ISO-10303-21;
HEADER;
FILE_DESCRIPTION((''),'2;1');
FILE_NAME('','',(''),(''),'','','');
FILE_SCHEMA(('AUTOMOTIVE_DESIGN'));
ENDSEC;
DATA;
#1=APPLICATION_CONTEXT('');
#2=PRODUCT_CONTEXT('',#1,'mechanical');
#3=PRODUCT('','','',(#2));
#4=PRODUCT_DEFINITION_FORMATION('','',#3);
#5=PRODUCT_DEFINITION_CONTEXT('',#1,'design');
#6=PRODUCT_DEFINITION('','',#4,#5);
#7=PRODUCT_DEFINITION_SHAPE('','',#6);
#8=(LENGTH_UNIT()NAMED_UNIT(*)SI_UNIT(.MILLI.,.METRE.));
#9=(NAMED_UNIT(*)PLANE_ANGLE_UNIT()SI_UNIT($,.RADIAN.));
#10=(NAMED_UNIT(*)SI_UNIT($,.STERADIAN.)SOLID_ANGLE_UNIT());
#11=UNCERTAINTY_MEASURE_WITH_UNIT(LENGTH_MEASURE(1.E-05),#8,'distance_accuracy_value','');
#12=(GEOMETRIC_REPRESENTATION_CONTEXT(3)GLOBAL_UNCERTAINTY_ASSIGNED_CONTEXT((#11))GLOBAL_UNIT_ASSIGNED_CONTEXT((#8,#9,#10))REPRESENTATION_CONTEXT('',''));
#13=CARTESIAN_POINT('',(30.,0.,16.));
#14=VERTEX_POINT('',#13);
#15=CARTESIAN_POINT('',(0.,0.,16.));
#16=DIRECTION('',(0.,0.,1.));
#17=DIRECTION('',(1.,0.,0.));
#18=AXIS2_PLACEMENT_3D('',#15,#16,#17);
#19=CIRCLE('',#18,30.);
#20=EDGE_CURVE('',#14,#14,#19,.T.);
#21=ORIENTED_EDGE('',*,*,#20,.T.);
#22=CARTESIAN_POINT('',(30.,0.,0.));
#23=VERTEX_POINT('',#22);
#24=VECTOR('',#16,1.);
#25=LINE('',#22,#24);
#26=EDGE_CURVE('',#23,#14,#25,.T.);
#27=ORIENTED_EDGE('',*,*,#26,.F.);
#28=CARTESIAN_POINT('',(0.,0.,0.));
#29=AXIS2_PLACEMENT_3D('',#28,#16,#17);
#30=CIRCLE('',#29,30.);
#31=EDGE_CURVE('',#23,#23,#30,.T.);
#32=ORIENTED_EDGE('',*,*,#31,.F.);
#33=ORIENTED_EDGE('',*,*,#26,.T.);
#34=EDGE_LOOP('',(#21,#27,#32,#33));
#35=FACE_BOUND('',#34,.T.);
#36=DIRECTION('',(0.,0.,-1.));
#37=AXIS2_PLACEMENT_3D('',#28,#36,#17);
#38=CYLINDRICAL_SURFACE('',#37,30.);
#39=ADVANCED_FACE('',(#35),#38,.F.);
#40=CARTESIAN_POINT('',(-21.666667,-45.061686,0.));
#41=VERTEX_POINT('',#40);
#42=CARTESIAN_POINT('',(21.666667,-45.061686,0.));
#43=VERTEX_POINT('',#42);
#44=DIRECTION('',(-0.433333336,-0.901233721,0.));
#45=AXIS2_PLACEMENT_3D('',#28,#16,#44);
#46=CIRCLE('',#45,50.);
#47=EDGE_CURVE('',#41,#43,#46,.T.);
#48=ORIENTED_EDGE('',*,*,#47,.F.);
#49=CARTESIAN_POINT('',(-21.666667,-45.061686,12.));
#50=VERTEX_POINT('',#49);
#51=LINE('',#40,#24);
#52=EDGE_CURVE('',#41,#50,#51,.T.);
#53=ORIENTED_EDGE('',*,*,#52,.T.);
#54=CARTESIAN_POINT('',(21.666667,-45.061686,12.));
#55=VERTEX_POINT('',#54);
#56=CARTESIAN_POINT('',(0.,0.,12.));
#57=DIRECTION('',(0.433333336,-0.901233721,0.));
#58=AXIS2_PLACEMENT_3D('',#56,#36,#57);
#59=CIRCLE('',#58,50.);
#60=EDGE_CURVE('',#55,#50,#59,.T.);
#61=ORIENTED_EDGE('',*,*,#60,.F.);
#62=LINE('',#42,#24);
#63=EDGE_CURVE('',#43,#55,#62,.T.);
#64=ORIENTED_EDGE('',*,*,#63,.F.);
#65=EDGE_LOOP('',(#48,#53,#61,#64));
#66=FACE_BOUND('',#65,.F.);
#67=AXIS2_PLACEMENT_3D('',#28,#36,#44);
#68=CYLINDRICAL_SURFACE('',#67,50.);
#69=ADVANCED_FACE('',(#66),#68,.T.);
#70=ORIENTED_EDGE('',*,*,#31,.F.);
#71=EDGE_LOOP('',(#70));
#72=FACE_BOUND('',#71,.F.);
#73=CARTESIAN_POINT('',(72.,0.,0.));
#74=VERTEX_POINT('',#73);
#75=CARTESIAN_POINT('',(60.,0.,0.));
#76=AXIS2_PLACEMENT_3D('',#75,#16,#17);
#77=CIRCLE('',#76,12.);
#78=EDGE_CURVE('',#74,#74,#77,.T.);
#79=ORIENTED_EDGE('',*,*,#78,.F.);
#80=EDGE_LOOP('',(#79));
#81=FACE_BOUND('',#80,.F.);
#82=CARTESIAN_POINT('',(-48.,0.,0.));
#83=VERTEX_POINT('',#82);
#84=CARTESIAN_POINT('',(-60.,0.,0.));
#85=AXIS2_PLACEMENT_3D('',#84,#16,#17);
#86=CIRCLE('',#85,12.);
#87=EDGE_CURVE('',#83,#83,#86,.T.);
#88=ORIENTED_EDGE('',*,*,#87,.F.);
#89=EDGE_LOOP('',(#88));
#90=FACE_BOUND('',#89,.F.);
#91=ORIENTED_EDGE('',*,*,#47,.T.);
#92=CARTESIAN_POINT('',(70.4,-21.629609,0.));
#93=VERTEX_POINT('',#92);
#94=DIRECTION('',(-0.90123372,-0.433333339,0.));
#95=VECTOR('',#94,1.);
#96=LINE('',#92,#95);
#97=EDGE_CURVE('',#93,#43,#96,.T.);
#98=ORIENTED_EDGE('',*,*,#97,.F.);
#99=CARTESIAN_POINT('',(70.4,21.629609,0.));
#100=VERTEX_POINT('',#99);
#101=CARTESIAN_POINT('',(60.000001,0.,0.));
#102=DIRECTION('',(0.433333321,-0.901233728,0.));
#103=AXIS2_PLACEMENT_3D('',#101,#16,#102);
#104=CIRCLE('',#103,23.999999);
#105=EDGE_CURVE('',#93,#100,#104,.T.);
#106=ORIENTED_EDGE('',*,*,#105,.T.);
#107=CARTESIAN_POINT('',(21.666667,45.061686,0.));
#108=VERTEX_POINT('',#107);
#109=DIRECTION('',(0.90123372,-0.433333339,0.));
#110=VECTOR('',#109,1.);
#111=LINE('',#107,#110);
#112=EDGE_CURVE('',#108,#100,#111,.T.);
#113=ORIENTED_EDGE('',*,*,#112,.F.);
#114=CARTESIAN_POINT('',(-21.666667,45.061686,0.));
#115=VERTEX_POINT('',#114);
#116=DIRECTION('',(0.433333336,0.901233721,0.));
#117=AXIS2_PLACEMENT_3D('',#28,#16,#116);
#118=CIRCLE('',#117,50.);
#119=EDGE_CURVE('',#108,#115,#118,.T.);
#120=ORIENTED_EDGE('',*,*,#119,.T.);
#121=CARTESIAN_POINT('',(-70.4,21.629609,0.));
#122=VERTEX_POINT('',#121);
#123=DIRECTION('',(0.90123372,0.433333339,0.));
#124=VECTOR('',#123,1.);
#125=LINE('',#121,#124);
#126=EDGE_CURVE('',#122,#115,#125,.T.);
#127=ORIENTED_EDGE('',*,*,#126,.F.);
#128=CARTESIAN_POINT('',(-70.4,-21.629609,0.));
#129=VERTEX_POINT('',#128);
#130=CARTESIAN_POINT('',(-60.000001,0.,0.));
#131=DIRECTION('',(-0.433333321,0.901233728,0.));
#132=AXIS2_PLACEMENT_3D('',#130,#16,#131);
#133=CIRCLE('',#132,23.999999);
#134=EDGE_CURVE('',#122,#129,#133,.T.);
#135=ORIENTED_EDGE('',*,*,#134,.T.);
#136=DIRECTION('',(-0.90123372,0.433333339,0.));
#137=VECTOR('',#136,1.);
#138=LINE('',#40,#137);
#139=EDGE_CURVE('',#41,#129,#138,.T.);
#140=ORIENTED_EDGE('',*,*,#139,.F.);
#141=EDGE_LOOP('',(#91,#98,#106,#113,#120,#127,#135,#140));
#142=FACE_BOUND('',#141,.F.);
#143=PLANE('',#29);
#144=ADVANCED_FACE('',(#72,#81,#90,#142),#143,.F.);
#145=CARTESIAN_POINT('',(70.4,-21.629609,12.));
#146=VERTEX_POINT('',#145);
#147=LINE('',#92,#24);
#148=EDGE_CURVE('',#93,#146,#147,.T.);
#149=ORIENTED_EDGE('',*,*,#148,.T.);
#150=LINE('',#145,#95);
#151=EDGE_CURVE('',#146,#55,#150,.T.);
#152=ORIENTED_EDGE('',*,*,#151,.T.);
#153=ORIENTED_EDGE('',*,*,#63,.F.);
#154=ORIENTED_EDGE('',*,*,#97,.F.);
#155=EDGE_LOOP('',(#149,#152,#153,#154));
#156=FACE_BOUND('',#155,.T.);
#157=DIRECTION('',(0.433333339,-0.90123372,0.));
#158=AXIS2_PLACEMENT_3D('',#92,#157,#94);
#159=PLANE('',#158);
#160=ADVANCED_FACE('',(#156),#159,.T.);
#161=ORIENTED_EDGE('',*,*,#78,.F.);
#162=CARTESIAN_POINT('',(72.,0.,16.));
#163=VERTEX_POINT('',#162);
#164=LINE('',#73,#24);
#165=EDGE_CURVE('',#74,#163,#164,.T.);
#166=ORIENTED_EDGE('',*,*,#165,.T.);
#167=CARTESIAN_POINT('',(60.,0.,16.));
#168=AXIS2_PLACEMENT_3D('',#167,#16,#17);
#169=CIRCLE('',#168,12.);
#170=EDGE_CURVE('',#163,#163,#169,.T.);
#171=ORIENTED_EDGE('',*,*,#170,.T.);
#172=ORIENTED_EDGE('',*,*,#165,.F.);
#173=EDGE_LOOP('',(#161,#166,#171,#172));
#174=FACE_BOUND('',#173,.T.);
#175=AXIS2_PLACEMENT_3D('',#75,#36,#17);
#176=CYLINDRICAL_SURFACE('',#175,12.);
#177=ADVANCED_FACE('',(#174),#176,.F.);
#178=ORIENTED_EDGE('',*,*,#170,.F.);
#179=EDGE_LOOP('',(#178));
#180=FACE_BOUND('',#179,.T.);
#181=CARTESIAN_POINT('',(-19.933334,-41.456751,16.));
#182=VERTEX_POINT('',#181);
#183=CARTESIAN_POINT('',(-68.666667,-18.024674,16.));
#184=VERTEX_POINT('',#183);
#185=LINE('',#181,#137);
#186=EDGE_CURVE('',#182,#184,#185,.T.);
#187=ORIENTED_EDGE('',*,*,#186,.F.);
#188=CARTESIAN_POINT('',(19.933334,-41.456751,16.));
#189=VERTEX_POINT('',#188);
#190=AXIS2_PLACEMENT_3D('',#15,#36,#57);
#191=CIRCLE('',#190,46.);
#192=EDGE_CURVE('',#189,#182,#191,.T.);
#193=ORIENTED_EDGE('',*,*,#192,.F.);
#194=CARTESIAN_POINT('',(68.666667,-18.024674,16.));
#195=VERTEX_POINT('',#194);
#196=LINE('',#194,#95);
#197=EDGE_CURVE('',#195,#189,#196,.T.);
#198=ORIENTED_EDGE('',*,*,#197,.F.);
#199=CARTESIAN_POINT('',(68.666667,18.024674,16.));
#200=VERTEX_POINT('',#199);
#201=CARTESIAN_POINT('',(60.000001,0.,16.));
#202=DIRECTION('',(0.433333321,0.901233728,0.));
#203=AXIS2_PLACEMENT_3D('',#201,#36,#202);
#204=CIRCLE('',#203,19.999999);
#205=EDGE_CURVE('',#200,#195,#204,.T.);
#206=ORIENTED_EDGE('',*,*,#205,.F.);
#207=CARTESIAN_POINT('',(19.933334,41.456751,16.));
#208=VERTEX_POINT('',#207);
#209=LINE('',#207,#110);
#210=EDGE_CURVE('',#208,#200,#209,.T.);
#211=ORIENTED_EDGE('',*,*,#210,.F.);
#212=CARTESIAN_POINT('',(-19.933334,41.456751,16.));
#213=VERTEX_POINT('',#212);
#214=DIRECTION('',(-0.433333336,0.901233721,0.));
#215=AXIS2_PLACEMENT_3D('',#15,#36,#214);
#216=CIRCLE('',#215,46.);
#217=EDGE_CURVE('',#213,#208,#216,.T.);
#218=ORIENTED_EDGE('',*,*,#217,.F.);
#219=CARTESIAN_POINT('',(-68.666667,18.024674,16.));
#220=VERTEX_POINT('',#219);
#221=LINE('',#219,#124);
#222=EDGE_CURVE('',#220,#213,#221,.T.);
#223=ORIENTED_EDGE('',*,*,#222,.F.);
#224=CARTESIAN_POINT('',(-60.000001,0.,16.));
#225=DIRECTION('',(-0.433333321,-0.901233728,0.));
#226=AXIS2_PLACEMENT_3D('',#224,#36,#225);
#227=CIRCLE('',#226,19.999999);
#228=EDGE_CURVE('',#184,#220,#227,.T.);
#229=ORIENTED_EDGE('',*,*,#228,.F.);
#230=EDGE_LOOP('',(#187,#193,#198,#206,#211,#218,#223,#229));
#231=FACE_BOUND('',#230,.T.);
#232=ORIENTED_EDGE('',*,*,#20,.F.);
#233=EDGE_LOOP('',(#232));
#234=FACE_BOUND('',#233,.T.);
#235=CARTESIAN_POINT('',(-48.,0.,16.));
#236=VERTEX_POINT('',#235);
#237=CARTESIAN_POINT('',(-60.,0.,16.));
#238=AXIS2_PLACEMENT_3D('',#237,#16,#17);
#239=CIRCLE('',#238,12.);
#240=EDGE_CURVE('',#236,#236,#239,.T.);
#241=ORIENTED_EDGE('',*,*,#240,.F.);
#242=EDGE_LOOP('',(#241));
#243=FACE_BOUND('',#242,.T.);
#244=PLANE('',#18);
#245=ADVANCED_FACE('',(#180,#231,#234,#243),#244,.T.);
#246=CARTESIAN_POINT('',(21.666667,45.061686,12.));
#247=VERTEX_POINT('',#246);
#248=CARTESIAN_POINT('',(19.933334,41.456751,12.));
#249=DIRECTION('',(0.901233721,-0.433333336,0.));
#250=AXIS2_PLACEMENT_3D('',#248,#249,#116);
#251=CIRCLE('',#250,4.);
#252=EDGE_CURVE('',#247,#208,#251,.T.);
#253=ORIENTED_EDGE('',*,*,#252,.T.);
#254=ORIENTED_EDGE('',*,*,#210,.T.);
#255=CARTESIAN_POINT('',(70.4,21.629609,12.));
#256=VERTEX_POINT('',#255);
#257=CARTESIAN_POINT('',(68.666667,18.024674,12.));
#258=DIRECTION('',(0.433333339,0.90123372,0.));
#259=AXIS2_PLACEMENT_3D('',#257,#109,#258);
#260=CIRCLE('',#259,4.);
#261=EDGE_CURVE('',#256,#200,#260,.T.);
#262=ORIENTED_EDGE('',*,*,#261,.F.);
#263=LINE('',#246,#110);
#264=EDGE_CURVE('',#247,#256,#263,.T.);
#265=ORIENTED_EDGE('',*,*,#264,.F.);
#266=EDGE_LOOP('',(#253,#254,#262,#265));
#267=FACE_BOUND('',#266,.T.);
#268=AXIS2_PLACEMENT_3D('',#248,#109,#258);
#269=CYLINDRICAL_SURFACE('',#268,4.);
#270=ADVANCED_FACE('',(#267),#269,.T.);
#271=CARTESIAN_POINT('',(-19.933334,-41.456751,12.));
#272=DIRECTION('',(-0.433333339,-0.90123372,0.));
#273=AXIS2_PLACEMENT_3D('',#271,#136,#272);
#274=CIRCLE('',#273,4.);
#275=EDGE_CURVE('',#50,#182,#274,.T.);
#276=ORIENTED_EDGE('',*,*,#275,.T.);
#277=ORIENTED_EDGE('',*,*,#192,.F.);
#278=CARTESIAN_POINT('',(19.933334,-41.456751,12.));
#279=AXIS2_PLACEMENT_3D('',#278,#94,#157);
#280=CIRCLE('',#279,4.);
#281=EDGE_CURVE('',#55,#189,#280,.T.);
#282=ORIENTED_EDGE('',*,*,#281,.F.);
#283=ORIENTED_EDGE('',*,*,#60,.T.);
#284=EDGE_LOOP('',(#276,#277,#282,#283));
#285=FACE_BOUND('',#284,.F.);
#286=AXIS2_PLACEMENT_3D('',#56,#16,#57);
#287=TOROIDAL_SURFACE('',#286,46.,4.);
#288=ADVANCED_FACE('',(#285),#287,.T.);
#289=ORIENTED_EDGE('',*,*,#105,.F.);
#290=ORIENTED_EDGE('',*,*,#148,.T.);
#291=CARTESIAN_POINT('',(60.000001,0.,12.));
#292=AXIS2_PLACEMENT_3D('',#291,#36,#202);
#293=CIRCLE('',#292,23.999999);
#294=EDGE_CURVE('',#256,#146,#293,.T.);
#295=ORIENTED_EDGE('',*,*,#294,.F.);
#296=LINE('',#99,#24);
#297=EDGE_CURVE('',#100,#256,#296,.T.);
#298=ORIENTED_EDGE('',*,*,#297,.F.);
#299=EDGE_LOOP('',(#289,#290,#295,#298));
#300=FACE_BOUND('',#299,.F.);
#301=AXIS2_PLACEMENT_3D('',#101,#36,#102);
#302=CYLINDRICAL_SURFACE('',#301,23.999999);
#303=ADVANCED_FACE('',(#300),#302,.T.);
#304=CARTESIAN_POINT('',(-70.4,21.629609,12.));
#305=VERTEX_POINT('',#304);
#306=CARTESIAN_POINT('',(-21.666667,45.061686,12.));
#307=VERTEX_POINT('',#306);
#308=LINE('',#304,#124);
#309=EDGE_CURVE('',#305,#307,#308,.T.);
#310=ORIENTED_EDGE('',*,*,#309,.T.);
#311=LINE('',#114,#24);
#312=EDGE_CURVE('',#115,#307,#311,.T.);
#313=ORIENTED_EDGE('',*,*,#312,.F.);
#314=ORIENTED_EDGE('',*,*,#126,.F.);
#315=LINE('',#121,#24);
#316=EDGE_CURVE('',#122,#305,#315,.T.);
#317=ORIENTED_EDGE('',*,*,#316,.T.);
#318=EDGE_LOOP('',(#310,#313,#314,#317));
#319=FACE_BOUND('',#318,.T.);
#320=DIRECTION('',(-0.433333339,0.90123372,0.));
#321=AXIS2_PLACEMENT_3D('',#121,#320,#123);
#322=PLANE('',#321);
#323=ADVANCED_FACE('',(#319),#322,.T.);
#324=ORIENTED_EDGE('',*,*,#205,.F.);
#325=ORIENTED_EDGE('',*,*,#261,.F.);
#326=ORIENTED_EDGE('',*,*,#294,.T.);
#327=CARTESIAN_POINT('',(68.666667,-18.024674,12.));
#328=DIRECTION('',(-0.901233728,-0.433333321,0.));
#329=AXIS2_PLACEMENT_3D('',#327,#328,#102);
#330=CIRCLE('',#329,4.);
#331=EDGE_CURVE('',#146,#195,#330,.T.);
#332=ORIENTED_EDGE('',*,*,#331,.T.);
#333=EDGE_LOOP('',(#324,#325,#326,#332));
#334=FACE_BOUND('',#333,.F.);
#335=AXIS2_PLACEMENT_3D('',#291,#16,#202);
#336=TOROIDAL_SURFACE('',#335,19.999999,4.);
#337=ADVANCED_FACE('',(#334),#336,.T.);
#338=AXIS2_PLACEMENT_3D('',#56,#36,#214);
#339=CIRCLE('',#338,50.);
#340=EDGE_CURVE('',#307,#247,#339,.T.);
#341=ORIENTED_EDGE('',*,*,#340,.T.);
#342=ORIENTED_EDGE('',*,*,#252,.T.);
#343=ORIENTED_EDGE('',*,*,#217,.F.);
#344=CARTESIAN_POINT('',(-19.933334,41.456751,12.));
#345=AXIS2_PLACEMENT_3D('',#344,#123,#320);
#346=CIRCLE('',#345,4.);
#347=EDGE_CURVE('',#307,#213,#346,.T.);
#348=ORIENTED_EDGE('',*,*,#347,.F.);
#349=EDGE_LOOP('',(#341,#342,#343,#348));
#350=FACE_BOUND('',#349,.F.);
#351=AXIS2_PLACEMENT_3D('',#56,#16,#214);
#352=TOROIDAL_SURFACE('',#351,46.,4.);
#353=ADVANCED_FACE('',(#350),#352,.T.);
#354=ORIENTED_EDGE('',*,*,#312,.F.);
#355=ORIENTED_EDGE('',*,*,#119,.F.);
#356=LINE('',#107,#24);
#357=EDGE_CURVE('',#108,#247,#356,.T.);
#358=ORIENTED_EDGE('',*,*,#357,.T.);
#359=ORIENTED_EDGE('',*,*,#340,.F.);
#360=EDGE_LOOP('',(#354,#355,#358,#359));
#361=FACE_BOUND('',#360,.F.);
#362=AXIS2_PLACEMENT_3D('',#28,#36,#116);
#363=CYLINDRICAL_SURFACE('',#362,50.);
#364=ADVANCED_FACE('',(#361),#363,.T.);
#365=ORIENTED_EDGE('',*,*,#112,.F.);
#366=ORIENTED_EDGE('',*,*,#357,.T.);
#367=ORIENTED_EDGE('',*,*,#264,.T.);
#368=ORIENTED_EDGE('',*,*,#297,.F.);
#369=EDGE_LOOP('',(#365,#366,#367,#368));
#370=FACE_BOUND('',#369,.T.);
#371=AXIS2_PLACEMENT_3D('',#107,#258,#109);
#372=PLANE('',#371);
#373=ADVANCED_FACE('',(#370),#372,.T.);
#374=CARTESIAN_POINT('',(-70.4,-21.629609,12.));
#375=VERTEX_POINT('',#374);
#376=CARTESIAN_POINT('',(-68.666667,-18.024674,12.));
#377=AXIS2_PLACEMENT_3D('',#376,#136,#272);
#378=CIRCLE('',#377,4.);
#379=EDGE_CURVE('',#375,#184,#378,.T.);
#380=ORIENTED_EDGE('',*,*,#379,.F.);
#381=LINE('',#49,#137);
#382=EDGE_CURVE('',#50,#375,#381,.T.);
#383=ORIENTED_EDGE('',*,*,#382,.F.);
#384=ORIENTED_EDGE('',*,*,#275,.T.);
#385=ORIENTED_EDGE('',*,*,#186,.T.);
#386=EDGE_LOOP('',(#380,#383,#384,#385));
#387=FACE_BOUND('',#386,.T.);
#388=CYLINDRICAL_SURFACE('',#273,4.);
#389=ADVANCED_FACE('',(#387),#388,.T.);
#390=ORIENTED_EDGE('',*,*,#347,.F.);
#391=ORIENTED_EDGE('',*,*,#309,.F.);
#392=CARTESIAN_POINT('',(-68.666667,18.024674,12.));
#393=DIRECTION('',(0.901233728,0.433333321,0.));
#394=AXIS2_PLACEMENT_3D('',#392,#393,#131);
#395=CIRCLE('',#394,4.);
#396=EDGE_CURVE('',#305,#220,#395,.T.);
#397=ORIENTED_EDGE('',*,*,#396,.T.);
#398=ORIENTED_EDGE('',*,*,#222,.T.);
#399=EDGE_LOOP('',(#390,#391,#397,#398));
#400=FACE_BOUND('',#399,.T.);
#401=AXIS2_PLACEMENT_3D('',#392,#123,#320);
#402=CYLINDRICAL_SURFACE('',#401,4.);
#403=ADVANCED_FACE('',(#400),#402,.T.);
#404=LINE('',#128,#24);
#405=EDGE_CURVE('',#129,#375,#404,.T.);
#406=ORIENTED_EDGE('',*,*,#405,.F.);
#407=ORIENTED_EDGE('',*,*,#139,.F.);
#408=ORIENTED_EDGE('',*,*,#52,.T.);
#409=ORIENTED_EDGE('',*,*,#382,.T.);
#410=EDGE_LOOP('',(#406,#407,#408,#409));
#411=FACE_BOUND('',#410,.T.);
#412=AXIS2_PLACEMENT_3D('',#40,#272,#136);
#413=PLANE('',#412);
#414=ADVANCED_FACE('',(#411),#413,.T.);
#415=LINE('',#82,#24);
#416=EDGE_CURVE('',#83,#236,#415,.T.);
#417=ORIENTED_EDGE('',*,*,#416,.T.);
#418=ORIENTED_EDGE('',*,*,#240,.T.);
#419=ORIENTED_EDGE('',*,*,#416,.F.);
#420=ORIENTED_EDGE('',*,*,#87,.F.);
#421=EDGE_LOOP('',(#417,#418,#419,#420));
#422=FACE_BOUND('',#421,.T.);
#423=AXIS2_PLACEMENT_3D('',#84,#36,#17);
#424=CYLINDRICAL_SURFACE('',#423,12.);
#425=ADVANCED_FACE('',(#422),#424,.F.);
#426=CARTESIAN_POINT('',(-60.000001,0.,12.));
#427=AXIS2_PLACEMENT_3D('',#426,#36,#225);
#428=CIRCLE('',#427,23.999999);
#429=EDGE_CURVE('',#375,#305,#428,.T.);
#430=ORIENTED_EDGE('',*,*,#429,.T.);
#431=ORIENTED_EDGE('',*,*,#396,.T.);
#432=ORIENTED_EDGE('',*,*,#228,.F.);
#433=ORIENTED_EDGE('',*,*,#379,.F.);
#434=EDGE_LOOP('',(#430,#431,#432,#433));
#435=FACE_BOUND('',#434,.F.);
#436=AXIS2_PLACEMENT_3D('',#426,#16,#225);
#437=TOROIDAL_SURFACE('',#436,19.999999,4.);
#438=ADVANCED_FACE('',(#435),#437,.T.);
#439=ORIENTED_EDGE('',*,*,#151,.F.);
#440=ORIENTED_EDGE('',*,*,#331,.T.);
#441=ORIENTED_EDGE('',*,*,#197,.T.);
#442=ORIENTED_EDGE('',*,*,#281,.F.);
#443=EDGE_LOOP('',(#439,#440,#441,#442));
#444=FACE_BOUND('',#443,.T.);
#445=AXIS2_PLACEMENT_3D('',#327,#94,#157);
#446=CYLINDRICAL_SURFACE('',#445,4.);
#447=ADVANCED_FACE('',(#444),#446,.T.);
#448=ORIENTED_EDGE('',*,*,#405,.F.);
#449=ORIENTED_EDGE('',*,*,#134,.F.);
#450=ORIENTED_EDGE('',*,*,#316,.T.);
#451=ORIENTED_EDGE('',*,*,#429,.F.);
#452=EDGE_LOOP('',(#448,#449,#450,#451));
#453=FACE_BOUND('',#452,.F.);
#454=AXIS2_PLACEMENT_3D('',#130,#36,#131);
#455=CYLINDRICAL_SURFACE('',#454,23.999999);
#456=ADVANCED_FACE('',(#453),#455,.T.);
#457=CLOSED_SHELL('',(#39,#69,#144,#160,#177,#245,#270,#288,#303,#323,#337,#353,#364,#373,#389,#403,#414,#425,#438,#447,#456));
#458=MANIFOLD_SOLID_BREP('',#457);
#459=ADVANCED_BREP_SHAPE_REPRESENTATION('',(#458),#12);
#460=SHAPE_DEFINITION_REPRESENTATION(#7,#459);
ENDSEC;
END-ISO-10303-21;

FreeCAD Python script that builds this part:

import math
import FreeCAD as App
import Part
import Sketcher
from FreeCAD import Vector
Q = App.Units.Quantity


def edges_at(feature, points):
    """Names of the edges that pass closest to the given points."""
    edges = feature.Shape.Edges
    near = lambda p: min(range(len(edges)), key=lambda i: edges[i].distToShape(Part.Vertex(*p))[0])
    return sorted({f"Edge{near(p) + 1}" for p in points})

doc = App.newDocument("Part")
body = doc.addObject("PartDesign::Body", "Body")

# Sketch on XY plane
sketch1 = doc.addObject("Sketcher::SketchObject", "Sketch")
body.addObject(sketch1)
sketch1.AttachmentSupport = (doc.XY_Plane, [""])
sketch1.MapMode = "FlatFace"
sketch1.addGeometry(Part.ArcOfCircle(Part.Circle(Vector(60, 0, 0), Vector(0, 0, 1), 24), math.radians(-64), math.radians(64)), False)
sketch1.addGeometry(Part.LineSegment(Vector(70, 22, 0), Vector(22, 45, 0)), False)
sketch1.addGeometry(Part.ArcOfCircle(Part.Circle(Vector(0, 0, 0), Vector(0, 0, 1), 50), math.radians(64), math.radians(116)), False)
sketch1.addGeometry(Part.LineSegment(Vector(-22, 45, 0), Vector(-70, 22, 0)), False)
sketch1.addGeometry(Part.ArcOfCircle(Part.Circle(Vector(-60, 0, 0), Vector(0, 0, 1), 24), math.radians(116), math.radians(244)), False)
sketch1.addGeometry(Part.LineSegment(Vector(-70, -22, 0), Vector(-22, -45, 0)), False)
sketch1.addGeometry(Part.ArcOfCircle(Part.Circle(Vector(0, 0, 0), Vector(0, 0, 1), 50), math.radians(-116), math.radians(-64)), False)
sketch1.addGeometry(Part.LineSegment(Vector(22, -45, 0), Vector(70, -22, 0)), False)
sketch1.addGeometry(Part.Circle(Vector(-60, 0, 0), Vector(0, 0, 1), 12), False)
sketch1.addGeometry(Part.Circle(Vector(0, 0, 0), Vector(0, 0, 1), 30), False)
sketch1.addGeometry(Part.Circle(Vector(60, 0, 0), Vector(0, 0, 1), 12), False)
sketch1.addConstraint(Sketcher.Constraint("Tangent", 0, 2, 1, 1))
sketch1.addConstraint(Sketcher.Constraint("Tangent", 1, 2, 2, 1))
sketch1.addConstraint(Sketcher.Constraint("Tangent", 2, 2, 3, 1))
sketch1.addConstraint(Sketcher.Constraint("Tangent", 3, 2, 4, 1))
sketch1.addConstraint(Sketcher.Constraint("Tangent", 4, 2, 5, 1))
sketch1.addConstraint(Sketcher.Constraint("Tangent", 5, 2, 6, 1))
sketch1.addConstraint(Sketcher.Constraint("Tangent", 6, 2, 7, 1))
sketch1.addConstraint(Sketcher.Constraint("Tangent", 7, 2, 0, 1))
sketch1.addConstraint(Sketcher.Constraint("Coincident", 2, 3, -1, 1))
sketch1.addConstraint(Sketcher.Constraint("Coincident", 6, 3, -1, 1))
sketch1.addConstraint(Sketcher.Constraint("Coincident", 9, 3, -1, 1))
sketch1.addConstraint(Sketcher.Constraint("Coincident", 8, 3, 4, 3))
sketch1.addConstraint(Sketcher.Constraint("Coincident", 10, 3, 0, 3))
sketch1.addConstraint(Sketcher.Constraint("Equal", 0, 4))
sketch1.addConstraint(Sketcher.Constraint("Equal", 2, 6))
sketch1.addConstraint(Sketcher.Constraint("Equal", 8, 10))
sketch1.addConstraint(Sketcher.Constraint("Symmetric", 0, 3, 4, 3, -1, 1))
sketch1.addConstraint(Sketcher.Constraint("PointOnObject", 0, 3, -1))
sketch1.addConstraint(Sketcher.Constraint("Diameter", 8, Q("24 mm")))
sketch1.addConstraint(Sketcher.Constraint("Diameter", 9, Q("60 mm")))
sketch1.addConstraint(Sketcher.Constraint("Radius", 0, Q("23.999999 mm")))
sketch1.addConstraint(Sketcher.Constraint("Radius", 2, Q("50 mm")))
sketch1.addConstraint(Sketcher.Constraint("DistanceX", -1, 1, 0, 3, Q("60.000001 mm")))
pad1 = doc.addObject("PartDesign::Pad", "Pad")
body.addObject(pad1)
pad1.Profile = sketch1
pad1.Length = 16
doc.recompute()

fillet = doc.addObject("PartDesign::Fillet", "Fillet")
body.addObject(fillet)
fillet.Base = (pad1, edges_at(pad1, [
    (-46.033, -33.346, 16),
    (0, -50, 16),
    (46.033, -33.346, 16),
    (84, 0, 16),
    (46.033, 33.346, 16),
    (0, 50, 16),
    (-46.033, 33.346, 16),
    (-84, 0, 16),
]))
fillet.Radius = 4

doc.recompute()
